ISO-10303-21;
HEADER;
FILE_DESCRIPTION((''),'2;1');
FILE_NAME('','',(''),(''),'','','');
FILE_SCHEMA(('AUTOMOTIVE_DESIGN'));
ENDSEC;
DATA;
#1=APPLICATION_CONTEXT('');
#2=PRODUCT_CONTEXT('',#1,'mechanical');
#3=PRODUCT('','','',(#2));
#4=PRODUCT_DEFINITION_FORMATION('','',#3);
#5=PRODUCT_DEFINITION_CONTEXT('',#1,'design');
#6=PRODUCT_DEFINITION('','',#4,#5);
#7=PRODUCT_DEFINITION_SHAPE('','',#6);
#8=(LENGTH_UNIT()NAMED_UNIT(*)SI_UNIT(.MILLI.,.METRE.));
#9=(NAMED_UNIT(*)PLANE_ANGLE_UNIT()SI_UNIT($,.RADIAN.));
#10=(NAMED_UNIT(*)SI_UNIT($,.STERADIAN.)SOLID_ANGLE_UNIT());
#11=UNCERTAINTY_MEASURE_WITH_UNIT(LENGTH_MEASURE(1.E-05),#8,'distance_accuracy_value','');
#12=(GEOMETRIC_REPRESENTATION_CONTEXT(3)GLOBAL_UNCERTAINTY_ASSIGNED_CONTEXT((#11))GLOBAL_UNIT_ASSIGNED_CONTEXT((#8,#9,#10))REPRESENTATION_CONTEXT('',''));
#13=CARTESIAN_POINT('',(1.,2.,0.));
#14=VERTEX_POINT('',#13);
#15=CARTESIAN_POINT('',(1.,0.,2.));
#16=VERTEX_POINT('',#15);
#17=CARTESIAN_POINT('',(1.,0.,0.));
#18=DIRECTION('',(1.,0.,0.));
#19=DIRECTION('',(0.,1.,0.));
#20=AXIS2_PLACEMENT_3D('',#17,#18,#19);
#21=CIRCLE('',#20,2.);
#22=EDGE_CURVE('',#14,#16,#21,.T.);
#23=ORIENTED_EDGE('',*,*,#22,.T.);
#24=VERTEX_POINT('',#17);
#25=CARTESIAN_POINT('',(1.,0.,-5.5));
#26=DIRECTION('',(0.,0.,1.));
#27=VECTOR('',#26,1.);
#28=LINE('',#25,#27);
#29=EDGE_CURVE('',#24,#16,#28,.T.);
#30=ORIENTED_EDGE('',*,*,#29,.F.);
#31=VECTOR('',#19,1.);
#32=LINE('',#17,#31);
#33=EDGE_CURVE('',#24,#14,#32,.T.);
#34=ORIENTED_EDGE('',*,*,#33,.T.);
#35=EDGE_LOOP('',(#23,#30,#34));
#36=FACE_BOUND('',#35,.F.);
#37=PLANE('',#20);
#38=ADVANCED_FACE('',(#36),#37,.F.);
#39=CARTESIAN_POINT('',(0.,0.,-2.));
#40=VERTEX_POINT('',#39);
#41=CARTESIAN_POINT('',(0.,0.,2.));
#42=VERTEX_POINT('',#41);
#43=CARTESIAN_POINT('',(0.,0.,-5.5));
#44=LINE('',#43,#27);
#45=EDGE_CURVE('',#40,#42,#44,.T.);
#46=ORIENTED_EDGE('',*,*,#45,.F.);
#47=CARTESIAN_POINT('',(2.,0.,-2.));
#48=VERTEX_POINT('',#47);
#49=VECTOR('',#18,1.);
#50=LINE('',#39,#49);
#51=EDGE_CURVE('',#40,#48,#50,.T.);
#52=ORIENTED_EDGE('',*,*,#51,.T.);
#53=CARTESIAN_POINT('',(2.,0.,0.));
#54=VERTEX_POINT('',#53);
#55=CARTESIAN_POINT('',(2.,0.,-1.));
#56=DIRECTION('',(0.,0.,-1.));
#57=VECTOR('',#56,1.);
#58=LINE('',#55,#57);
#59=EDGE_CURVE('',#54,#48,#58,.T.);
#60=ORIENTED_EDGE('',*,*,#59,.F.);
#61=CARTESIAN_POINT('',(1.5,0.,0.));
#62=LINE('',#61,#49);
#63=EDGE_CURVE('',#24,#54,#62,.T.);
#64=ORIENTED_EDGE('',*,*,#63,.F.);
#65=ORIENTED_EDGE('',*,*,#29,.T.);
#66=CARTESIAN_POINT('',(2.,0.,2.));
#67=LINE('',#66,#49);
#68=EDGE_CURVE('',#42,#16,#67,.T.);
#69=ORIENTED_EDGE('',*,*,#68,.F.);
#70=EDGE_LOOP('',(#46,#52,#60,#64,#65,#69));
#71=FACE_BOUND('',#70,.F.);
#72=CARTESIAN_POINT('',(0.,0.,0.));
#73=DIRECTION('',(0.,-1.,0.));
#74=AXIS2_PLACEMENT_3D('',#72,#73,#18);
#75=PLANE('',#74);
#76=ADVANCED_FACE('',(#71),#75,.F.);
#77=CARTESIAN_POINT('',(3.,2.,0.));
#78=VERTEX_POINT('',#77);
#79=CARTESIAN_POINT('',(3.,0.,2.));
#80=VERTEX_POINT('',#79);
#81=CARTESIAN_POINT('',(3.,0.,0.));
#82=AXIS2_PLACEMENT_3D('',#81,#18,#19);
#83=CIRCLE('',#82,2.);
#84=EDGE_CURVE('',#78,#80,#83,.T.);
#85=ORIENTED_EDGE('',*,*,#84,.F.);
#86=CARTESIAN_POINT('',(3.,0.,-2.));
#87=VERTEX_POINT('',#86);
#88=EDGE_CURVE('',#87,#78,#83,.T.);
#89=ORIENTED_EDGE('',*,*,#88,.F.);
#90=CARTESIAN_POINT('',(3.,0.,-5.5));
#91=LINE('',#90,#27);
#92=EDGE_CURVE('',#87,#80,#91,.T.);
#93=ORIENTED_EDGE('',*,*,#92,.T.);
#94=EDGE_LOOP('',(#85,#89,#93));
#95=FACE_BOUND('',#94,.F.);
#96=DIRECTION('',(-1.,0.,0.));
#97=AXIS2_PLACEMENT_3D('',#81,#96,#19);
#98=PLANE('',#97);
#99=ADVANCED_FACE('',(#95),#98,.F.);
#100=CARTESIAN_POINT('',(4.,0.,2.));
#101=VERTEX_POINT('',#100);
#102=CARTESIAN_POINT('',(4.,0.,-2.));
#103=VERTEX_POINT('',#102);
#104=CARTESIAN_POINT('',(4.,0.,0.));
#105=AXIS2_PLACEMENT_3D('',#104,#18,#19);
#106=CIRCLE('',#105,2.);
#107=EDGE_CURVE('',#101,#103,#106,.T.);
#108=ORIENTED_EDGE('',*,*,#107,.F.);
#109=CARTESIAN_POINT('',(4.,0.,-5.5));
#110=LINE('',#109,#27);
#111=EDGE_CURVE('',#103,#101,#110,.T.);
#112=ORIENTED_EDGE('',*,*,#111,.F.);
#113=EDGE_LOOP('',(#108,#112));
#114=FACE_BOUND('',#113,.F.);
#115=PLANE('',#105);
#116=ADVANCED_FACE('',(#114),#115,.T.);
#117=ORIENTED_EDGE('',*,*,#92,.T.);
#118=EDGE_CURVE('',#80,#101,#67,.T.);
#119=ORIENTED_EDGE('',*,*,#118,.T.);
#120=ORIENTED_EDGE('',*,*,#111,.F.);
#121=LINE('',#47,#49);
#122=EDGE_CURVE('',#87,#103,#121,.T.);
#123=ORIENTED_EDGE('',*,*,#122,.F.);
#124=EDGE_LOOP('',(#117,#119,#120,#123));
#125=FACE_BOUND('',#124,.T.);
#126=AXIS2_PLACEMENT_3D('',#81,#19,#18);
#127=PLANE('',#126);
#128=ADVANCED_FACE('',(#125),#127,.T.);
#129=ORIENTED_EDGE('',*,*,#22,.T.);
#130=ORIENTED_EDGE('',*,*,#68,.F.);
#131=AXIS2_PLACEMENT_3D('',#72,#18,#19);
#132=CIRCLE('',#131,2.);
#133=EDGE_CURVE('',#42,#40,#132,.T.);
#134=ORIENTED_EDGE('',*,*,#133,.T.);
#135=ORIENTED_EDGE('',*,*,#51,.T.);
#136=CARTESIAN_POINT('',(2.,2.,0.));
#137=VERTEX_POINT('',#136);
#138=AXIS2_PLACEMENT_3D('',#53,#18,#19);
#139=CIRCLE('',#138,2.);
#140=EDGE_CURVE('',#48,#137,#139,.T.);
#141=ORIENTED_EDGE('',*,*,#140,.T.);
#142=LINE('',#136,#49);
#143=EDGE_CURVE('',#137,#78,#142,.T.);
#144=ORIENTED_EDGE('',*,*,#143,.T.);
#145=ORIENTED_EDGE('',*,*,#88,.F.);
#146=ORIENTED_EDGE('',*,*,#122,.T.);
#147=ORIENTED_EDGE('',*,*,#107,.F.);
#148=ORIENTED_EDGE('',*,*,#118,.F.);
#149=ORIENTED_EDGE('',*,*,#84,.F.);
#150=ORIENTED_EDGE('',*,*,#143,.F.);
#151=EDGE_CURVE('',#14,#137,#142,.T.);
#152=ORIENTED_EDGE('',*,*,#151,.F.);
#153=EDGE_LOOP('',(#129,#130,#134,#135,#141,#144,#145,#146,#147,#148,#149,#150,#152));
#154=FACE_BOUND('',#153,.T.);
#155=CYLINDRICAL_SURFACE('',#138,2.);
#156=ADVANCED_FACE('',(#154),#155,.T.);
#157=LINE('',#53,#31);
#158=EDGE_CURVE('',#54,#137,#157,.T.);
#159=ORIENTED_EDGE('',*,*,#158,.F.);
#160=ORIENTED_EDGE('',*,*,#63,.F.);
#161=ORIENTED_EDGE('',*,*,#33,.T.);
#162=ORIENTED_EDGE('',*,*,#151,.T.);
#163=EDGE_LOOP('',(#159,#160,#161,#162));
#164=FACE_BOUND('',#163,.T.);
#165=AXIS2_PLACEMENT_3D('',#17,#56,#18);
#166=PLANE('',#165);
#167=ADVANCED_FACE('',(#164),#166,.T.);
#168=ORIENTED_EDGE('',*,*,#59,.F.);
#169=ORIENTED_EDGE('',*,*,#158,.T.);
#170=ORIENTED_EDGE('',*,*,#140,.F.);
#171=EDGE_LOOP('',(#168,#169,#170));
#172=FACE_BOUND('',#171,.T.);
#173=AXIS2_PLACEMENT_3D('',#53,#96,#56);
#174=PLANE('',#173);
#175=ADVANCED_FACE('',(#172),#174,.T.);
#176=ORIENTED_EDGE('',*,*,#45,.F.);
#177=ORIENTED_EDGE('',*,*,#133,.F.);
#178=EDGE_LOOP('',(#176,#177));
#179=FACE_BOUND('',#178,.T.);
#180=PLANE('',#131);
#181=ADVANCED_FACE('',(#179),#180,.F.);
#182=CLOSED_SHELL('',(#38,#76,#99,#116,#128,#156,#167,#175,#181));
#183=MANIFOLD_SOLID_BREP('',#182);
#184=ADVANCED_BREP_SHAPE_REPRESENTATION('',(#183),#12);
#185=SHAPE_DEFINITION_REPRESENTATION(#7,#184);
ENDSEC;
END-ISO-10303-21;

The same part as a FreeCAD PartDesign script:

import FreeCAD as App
import Part
import Sketcher

V = App.Vector


def add_polygon(sketch, points):
    """Adds a closed chain of lines whose ends are joined by coincident constraints."""
    first, n = sketch.GeometryCount, len(points)
    for a, b in zip(points, points[1:] + points[:1]):
        sketch.addGeometry(Part.LineSegment(App.Vector(*a, 0), App.Vector(*b, 0)), False)
    for i in range(n):
        sketch.addConstraint(Sketcher.Constraint("Coincident", first + i, 2, first + (i + 1) % n, 1))

doc = App.newDocument("Part")
body = doc.addObject("PartDesign::Body", "Body")

sketch1 = body.newObject("Sketcher::SketchObject", "Sketch")
sketch1.AttachmentSupport = (doc.getObject("XY_Plane"), [""])
sketch1.MapMode = "FlatFace"
add_polygon(sketch1, [(0, 2), (0, 0), (4, 0), (4, 2)])
sketch1.addConstraint(Sketcher.Constraint("Vertical", 0))
sketch1.addConstraint(Sketcher.Constraint("Horizontal", 1))
sketch1.addConstraint(Sketcher.Constraint("Vertical", 2))
sketch1.addConstraint(Sketcher.Constraint("Horizontal", 3))
sketch1.addConstraint(Sketcher.Constraint("Coincident", 0, 2, -1, 1))
sketch1.addConstraint(Sketcher.Constraint("DistanceX", 1, 1, 1, 2, 4.0))
sketch1.addConstraint(Sketcher.Constraint("DistanceY", 0, 2, 0, 1, 2.0))
revolution = body.newObject("PartDesign::Revolution", "Revolution")
revolution.Profile = sketch1
revolution.ReferenceAxis = (sketch1, ["H_Axis"])
revolution.Angle = 360

sketch2 = body.newObject("Sketcher::SketchObject", "Sketch001")
sketch2.AttachmentSupport = (doc.getObject("XY_Plane"), [""])
sketch2.MapMode = "FlatFace"
add_polygon(sketch2, [(3, 2), (3, 0), (4, 0), (4, 2)])
add_polygon(sketch2, [(0, 2), (0, 0), (1, 0), (1, 2)])
sketch2.addConstraint(Sketcher.Constraint("Vertical", 0))
sketch2.addConstraint(Sketcher.Constraint("Horizontal", 1))
sketch2.addConstraint(Sketcher.Constraint("Vertical", 2))
sketch2.addConstraint(Sketcher.Constraint("Horizontal", 3))
sketch2.addConstraint(Sketcher.Constraint("Vertical", 4))
sketch2.addConstraint(Sketcher.Constraint("Horizontal", 5))
sketch2.addConstraint(Sketcher.Constraint("Vertical", 6))
sketch2.addConstraint(Sketcher.Constraint("Horizontal", 7))
sketch2.addConstraint(Sketcher.Constraint("Coincident", 4, 2, -1, 1))
sketch2.addConstraint(Sketcher.Constraint("PointOnObject", 0, 2, -1))
sketch2.addConstraint(Sketcher.Constraint("Horizontal", 3, 2, 6, 2))
sketch2.addConstraint(Sketcher.Constraint("Equal", 3, 5))
sketch2.addConstraint(Sketcher.Constraint("DistanceX", 1, 1, 1, 2, 1.0))
sketch2.addConstraint(Sketcher.Constraint("DistanceY", 0, 2, 0, 1, 2.0))
sketch2.addConstraint(Sketcher.Constraint("DistanceX", -1, 1, 0, 2, 3.0))
pocket1 = body.newObject("PartDesign::Pocket", "Pocket")
pocket1.Profile = sketch2
pocket1.Length = 11
pocket1.Midplane = True

sketch3 = body.newObject("Sketcher::SketchObject", "Sketch002")
sketch3.AttachmentSupport = (doc.getObject("XZ_Plane"), [""])
sketch3.MapMode = "FlatFace"
add_polygon(sketch3, [(1, -2), (1, 0), (2, 0), (2, -2)])
sketch3.addConstraint(Sketcher.Constraint("Vertical", 0))
sketch3.addConstraint(Sketcher.Constraint("Horizontal", 1))
sketch3.addConstraint(Sketcher.Constraint("Vertical", 2))
sketch3.addConstraint(Sketcher.Constraint("Horizontal", 3))
sketch3.addConstraint(Sketcher.Constraint("PointOnObject", 0, 2, -1))
sketch3.addConstraint(Sketcher.Constraint("DistanceX", 1, 1, 1, 2, 1.0))
sketch3.addConstraint(Sketcher.Constraint("DistanceY", 0, 1, 0, 2, 2.0))
sketch3.addConstraint(Sketcher.Constraint("DistanceX", -1, 1, 0, 2, 1.0))
pocket2 = body.newObject("PartDesign::Pocket", "Pocket001")
pocket2.Profile = sketch3
pocket2.Length = 3

doc.recompute()
